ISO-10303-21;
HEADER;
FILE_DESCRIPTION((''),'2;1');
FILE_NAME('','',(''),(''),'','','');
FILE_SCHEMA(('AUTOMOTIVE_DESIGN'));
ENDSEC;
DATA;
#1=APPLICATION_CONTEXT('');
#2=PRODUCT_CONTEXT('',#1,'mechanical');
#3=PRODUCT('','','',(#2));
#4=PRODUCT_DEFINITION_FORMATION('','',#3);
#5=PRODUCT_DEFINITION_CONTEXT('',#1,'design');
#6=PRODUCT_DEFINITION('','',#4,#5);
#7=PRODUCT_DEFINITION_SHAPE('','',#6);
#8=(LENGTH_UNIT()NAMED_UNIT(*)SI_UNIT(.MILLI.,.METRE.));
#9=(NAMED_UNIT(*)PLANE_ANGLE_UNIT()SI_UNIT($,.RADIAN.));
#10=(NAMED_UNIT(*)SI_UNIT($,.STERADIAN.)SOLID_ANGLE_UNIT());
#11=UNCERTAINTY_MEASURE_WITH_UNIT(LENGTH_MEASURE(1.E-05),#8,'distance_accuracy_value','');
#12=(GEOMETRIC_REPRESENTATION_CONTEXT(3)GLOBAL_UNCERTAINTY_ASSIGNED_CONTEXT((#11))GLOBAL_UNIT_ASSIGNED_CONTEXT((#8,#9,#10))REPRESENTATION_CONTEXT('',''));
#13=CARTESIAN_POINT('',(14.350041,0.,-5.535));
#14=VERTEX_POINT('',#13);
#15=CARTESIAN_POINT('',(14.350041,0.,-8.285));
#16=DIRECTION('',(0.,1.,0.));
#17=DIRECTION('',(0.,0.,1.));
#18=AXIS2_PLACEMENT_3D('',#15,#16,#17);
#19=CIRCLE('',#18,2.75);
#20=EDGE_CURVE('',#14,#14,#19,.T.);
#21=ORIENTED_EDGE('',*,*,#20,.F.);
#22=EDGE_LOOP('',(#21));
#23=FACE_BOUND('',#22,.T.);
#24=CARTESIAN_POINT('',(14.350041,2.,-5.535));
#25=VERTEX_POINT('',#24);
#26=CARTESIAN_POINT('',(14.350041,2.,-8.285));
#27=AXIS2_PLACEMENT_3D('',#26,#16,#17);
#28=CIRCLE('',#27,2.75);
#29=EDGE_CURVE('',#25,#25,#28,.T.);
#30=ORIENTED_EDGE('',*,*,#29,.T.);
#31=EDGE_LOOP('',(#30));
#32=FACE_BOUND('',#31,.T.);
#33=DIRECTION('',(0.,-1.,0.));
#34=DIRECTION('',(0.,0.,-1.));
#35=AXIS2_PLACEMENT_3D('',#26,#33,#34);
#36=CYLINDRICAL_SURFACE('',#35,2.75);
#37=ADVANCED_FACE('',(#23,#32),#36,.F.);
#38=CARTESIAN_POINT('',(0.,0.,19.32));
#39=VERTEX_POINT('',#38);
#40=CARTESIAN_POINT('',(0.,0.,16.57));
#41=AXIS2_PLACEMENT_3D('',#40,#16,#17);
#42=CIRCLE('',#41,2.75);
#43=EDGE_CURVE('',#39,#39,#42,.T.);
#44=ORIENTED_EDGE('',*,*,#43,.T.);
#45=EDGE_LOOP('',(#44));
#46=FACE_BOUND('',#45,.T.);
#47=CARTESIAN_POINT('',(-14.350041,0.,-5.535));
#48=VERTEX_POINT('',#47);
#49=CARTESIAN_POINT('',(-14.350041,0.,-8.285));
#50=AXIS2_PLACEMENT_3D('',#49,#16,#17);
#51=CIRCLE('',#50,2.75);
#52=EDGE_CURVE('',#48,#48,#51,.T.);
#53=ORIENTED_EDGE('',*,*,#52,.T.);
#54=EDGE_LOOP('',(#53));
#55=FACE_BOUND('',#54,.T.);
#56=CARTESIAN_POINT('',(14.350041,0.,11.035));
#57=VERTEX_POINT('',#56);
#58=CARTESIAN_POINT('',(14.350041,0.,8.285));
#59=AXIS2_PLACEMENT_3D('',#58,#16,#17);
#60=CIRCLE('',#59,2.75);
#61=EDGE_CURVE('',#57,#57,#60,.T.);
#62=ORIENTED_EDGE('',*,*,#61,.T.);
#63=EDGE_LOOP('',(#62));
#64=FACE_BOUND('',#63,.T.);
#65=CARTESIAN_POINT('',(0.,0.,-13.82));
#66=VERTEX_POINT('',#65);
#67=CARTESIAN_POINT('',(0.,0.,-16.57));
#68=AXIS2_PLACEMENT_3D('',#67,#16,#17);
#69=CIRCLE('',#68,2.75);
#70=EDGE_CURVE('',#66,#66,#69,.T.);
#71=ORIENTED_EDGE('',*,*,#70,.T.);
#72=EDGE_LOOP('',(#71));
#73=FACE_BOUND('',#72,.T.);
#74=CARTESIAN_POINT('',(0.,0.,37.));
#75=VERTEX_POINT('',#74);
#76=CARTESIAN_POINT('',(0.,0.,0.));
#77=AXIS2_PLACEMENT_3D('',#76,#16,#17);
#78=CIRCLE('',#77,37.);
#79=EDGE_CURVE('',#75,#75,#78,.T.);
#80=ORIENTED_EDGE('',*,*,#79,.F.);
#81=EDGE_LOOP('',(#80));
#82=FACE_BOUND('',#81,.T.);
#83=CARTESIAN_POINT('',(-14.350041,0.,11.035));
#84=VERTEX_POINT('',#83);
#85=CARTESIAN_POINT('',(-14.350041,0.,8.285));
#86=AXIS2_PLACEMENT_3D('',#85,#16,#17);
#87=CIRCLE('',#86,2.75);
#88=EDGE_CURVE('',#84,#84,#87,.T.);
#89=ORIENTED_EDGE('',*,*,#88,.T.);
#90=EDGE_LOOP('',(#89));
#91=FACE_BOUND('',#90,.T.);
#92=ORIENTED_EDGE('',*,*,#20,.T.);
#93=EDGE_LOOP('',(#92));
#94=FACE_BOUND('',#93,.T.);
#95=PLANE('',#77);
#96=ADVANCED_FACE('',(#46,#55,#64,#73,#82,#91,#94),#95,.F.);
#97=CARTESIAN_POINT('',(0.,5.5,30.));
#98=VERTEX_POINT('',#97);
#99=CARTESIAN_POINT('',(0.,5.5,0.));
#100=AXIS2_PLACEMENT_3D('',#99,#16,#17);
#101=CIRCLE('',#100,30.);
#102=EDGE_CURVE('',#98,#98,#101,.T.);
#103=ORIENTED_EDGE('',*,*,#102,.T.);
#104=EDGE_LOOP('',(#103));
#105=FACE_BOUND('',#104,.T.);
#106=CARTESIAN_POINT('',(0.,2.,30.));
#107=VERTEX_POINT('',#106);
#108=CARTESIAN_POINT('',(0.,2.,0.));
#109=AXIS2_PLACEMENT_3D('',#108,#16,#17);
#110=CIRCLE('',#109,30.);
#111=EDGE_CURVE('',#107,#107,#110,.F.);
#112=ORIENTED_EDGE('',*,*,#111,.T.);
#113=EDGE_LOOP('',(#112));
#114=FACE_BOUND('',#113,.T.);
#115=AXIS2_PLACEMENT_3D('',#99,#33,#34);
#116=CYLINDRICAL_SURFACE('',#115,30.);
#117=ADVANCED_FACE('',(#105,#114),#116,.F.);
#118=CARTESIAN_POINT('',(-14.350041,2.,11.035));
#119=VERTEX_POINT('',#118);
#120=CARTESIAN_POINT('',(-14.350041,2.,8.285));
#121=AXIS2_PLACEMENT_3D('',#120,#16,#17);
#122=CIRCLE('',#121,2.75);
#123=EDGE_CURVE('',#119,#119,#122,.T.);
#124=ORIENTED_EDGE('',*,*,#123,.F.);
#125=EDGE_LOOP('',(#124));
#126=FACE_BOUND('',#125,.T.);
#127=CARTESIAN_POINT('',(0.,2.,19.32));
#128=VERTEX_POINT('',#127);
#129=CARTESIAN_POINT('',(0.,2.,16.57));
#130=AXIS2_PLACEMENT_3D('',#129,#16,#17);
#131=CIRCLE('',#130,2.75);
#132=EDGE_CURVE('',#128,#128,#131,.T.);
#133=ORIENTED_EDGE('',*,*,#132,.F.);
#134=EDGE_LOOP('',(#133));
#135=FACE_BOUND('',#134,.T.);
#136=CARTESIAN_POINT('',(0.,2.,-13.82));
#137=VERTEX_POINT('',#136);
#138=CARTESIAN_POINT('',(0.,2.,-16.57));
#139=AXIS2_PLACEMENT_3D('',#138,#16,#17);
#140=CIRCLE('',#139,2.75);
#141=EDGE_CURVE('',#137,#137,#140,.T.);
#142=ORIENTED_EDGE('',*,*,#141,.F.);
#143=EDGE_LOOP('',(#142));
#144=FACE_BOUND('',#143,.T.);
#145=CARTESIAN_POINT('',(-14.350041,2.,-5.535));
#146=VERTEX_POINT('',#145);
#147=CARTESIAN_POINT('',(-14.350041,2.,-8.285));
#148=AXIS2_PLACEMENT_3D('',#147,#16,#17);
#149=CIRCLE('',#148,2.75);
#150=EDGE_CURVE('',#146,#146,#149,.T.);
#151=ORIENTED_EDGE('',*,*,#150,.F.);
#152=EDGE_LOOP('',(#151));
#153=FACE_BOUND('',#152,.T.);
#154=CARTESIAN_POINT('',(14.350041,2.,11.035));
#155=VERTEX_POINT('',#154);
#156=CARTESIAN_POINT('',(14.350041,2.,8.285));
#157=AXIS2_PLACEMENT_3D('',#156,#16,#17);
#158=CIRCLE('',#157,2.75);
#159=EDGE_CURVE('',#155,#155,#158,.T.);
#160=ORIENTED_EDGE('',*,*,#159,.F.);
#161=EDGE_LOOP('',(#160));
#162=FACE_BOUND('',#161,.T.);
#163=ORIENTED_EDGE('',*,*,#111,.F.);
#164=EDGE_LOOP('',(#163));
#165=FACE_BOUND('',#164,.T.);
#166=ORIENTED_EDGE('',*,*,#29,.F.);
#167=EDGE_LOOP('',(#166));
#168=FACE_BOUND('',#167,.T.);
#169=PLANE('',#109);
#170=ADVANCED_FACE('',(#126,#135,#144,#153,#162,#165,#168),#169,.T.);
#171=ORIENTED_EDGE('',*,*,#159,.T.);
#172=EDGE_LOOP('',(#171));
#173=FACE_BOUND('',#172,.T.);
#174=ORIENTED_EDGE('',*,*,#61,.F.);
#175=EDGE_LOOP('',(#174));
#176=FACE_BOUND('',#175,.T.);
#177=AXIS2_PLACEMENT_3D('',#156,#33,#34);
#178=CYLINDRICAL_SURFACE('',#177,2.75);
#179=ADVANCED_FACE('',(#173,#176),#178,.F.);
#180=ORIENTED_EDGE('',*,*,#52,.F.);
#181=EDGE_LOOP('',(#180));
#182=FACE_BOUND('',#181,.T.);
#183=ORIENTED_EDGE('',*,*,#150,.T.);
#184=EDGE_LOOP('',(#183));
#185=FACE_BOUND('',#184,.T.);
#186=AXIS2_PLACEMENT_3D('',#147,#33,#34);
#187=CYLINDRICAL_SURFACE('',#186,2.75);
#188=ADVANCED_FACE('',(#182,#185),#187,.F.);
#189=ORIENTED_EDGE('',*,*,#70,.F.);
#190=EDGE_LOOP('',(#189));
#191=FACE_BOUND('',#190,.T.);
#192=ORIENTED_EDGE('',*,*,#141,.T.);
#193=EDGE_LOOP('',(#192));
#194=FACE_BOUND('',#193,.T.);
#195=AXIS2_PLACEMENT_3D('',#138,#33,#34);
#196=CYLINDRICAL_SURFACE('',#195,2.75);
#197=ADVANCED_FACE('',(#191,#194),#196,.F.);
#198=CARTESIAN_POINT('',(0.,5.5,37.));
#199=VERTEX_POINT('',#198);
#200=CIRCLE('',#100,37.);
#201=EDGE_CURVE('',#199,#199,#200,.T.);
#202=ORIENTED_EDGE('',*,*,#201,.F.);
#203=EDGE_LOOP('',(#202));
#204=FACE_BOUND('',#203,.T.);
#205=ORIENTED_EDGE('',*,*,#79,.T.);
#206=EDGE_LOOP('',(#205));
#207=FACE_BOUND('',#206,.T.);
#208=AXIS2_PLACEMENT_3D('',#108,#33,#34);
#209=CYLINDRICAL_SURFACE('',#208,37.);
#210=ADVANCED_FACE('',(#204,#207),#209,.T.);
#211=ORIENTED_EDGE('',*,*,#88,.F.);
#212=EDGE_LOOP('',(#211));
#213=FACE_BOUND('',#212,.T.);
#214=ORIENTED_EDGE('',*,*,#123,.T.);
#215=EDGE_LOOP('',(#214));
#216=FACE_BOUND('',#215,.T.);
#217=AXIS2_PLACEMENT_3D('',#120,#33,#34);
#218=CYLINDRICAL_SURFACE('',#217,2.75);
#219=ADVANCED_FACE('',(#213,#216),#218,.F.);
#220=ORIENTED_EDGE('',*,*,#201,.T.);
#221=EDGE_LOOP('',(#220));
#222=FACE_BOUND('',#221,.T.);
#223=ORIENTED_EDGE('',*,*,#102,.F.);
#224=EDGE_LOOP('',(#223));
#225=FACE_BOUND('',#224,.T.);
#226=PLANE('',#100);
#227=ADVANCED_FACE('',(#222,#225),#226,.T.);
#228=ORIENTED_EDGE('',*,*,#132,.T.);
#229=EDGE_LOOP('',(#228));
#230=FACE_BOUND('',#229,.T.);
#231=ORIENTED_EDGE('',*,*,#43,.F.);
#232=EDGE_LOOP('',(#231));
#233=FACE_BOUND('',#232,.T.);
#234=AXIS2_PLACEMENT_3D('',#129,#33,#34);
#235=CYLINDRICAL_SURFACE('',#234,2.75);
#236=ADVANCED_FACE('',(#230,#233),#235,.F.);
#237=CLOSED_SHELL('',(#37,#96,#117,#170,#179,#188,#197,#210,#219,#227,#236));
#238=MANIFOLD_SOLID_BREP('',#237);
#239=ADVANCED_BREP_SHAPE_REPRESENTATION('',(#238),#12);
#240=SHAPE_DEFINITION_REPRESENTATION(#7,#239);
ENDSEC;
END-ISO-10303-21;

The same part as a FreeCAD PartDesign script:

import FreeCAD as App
import Part
import Sketcher

V = App.Vector
Q = App.Units.Quantity

doc = App.newDocument("Part")
body = doc.addObject("PartDesign::Body", "Body")

# Sketch on XZ plane
sketch1 = body.newObject("Sketcher::SketchObject", "Sketch")
sketch1.AttachmentSupport = (doc.getObject("XZ_Plane"), [""])
sketch1.MapMode = "FlatFace"
sketch1.addGeometry(Part.Circle(V(0, 0, 0), V(0, 0, 1), 37), False)
sketch1.addGeometry(Part.Circle(V(-14.350041, 8.285, 0), V(0, 0, 1), 2.75), False)
sketch1.addGeometry(Part.Circle(V(0, 16.57, 0), V(0, 0, 1), 2.75), False)
sketch1.addGeometry(Part.Circle(V(14.350041, 8.285, 0), V(0, 0, 1), 2.75), False)
sketch1.addGeometry(Part.Circle(V(-14.350041, -8.285, 0), V(0, 0, 1), 2.75), False)
sketch1.addGeometry(Part.Circle(V(14.350041, -8.285, 0), V(0, 0, 1), 2.75), False)
sketch1.addGeometry(Part.Circle(V(0, -16.57, 0), V(0, 0, 1), 2.75), False)
sketch1.addConstraint(Sketcher.Constraint("Coincident", 0, 3, -1, 1))
sketch1.addConstraint(Sketcher.Constraint("Equal", 1, 2))
sketch1.addConstraint(Sketcher.Constraint("Equal", 2, 3))
sketch1.addConstraint(Sketcher.Constraint("Equal", 3, 4))
sketch1.addConstraint(Sketcher.Constraint("Equal", 4, 5))
sketch1.addConstraint(Sketcher.Constraint("Equal", 5, 6))
sketch1.addConstraint(Sketcher.Constraint("Symmetric", 3, 3, 4, 3, -1, 1))
sketch1.addConstraint(Sketcher.Constraint("Symmetric", 1, 3, 5, 3, -1, 1))
sketch1.addConstraint(Sketcher.Constraint("Symmetric", 2, 3, 6, 3, -1, 1))
sketch1.addConstraint(Sketcher.Constraint("Symmetric", 1, 3, 3, 3, -2))
sketch1.addConstraint(Sketcher.Constraint("PointOnObject", 2, 3, -2))
sketch1.addConstraint(Sketcher.Constraint("Diameter", 0, Q("74 mm")))
sketch1.addConstraint(Sketcher.Constraint("Diameter", 1, Q("5.5 mm")))
sketch1.addConstraint(Sketcher.Constraint("DistanceY", -1, 1, 2, 3, Q("16.57 mm")))
sketch1.addConstraint(Sketcher.Constraint("DistanceY", 4, 3, 1, 3, Q("16.57 mm")))
sketch1.addConstraint(Sketcher.Constraint("DistanceX", 1, 3, -1, 1, Q("14.350041 mm")))
pad1 = body.newObject("PartDesign::Pad", "Pad")
pad1.Profile = sketch1
pad1.Length = 2
pad1.Reversed = True

# Sketch on XZ plane
sketch2 = body.newObject("Sketcher::SketchObject", "Sketch001")
sketch2.AttachmentSupport = (doc.getObject("XZ_Plane"), [""])
sketch2.MapMode = "FlatFace"
sketch2.AttachmentOffset = App.Placement(V(0, 0, -2), App.Rotation())
sketch2.addGeometry(Part.Circle(V(0, 0, 0), V(0, 0, 1), 37), False)
sketch2.addGeometry(Part.Circle(V(0, 0, 0), V(0, 0, 1), 30), False)
sketch2.addConstraint(Sketcher.Constraint("Coincident", 0, 3, -1, 1))
sketch2.addConstraint(Sketcher.Constraint("Coincident", 1, 3, -1, 1))
sketch2.addConstraint(Sketcher.Constraint("Diameter", 0, Q("74 mm")))
sketch2.addConstraint(Sketcher.Constraint("Diameter", 1, Q("60 mm")))
pad2 = body.newObject("PartDesign::Pad", "Pad001")
pad2.Profile = sketch2
pad2.Length = 3.5
pad2.Reversed = True

doc.recompute()
